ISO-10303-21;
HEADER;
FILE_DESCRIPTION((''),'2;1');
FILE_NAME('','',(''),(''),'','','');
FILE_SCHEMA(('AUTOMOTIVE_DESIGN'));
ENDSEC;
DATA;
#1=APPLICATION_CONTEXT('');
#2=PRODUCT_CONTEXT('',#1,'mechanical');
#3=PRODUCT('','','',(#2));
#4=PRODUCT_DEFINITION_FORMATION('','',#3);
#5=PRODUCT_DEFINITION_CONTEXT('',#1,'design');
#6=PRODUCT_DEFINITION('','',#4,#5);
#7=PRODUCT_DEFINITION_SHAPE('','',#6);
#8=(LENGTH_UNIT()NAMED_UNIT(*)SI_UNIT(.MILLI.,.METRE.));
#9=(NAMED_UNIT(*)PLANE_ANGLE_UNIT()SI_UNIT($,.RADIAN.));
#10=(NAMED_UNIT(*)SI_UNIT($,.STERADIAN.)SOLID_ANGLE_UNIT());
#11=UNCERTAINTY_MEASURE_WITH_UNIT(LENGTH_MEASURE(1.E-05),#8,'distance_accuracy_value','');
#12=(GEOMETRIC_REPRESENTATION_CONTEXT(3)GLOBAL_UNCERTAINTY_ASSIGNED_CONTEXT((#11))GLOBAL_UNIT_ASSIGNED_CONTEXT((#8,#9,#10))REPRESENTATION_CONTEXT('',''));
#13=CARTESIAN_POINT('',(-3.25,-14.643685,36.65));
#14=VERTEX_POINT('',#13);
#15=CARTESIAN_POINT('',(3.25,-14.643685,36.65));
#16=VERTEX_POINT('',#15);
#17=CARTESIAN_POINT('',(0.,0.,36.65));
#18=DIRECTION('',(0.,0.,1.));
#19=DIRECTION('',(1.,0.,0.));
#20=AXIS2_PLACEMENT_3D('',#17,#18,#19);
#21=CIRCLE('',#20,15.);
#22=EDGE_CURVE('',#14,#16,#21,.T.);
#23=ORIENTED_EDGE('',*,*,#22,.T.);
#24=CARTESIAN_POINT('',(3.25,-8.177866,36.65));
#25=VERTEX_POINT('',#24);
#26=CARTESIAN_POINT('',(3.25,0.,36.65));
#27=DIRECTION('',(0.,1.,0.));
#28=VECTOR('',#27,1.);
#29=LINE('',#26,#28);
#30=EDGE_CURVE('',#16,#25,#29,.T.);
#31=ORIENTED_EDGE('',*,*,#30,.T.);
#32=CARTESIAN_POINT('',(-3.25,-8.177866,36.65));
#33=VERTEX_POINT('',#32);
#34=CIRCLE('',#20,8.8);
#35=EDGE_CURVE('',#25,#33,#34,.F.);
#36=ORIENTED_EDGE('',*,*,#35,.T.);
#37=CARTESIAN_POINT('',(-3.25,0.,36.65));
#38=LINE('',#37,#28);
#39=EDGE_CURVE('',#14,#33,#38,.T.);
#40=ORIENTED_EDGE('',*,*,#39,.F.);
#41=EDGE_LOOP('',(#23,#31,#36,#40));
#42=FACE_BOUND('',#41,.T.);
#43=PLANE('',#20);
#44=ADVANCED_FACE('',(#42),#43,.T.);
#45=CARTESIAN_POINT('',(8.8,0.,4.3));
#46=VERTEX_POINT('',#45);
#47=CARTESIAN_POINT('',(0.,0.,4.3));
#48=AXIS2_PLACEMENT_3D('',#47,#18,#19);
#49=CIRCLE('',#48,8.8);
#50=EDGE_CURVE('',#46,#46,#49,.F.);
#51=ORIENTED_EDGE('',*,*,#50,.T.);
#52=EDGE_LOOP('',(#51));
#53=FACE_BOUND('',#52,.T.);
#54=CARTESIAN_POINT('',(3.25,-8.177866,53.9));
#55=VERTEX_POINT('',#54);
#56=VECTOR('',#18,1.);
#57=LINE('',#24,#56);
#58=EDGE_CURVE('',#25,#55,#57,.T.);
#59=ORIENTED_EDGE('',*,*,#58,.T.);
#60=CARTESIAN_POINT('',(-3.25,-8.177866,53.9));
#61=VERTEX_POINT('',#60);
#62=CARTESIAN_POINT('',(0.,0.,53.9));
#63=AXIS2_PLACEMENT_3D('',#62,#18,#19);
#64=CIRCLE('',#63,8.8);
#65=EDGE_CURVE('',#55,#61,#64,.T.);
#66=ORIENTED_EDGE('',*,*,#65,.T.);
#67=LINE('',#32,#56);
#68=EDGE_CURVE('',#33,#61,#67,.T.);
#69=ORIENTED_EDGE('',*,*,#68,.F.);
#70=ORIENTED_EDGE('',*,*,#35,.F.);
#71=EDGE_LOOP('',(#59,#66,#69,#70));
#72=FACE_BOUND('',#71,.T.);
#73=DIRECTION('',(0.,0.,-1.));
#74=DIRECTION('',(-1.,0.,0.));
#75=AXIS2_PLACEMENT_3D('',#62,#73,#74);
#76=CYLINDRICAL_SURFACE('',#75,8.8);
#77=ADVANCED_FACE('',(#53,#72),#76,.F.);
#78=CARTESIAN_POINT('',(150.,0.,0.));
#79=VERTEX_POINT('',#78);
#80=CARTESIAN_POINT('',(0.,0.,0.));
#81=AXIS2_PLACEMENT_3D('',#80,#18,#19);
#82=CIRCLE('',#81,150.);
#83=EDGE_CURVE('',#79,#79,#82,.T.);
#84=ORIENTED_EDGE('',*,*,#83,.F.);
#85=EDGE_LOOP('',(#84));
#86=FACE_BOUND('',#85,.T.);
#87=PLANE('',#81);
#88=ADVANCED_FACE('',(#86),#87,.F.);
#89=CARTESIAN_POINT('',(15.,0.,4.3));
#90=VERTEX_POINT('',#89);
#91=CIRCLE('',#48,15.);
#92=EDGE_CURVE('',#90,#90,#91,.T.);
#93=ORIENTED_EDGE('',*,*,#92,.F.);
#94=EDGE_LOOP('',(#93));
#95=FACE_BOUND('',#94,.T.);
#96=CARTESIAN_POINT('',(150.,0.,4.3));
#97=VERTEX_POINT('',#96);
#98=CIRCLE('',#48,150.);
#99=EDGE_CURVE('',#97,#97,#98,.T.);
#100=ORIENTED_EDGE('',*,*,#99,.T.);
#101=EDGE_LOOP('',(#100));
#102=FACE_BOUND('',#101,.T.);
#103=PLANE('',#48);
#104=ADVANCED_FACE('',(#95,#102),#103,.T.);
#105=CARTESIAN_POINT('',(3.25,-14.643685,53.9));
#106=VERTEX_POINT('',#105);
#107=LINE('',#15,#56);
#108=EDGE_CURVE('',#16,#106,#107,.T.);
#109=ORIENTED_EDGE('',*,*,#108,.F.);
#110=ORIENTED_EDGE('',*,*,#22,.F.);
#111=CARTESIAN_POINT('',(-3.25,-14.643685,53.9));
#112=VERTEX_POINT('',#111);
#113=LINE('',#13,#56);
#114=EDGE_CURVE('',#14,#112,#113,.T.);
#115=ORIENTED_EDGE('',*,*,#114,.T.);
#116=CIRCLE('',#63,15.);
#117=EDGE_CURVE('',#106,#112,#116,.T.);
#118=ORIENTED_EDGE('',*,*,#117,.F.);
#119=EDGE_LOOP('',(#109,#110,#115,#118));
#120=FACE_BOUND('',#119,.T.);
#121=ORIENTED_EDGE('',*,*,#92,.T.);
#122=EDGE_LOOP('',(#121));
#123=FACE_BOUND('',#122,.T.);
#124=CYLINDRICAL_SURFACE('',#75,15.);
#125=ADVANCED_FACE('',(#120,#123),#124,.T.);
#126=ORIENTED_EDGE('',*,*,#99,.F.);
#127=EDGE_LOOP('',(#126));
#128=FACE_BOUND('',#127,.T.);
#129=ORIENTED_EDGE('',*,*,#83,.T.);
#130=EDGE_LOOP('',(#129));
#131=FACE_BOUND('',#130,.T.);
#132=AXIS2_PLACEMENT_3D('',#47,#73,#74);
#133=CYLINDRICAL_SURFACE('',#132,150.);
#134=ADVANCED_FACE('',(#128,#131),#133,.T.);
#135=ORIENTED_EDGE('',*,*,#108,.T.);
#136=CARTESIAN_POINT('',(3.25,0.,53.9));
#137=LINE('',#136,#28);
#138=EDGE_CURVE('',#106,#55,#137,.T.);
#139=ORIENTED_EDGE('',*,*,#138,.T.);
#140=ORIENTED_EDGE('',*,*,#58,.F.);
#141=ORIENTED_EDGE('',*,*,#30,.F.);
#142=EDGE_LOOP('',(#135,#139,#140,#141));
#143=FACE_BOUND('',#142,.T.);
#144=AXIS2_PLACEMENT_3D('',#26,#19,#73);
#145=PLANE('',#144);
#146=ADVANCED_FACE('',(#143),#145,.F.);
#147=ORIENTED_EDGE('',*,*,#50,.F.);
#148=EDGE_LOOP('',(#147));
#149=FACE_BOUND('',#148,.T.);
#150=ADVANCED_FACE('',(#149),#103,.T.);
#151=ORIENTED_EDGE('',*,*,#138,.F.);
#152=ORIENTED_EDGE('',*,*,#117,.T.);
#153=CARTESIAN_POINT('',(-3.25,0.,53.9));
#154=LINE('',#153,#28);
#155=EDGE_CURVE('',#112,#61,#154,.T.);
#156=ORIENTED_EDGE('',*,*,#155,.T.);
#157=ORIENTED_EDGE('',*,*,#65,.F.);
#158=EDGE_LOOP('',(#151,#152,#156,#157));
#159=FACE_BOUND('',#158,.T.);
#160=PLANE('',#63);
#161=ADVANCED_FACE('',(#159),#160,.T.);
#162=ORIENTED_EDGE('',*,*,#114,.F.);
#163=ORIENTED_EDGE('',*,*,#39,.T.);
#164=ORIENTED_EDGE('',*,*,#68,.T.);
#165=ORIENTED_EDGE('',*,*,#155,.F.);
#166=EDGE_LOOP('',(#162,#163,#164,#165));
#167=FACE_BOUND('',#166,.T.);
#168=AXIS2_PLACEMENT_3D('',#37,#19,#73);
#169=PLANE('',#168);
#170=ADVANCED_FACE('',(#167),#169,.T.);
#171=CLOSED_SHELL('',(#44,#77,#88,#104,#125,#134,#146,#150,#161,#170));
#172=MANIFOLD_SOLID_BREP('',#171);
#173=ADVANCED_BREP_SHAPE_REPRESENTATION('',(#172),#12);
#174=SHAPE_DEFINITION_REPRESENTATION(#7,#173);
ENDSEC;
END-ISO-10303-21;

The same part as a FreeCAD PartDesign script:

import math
import FreeCAD as App
import Part
import Sketcher

V = App.Vector
Q = App.Units.Quantity

doc = App.newDocument("Part")
body = doc.addObject("PartDesign::Body", "Body")

sketch1 = body.newObject("Sketcher::SketchObject", "Sketch")
sketch1.AttachmentSupport = (doc.getObject("XY_Plane"), [""])
sketch1.MapMode = "FlatFace"
sketch1.addGeometry(Part.Circle(V(0, 0, 0), V(0, 0, 1), 150), False)
sketch1.addConstraint(Sketcher.Constraint("Coincident", 0, 3, -1, 1))
sketch1.addConstraint(Sketcher.Constraint("Diameter", 0, Q("300 mm")))
pad1 = body.newObject("PartDesign::Pad", "Pad")
pad1.Profile = sketch1
pad1.Length = 4.3

sketch2 = body.newObject("Sketcher::SketchObject", "Sketch001")
sketch2.AttachmentSupport = (doc.getObject("XY_Plane"), [""])
sketch2.MapMode = "FlatFace"
sketch2.AttachmentOffset = App.Placement(V(0, 0, 4.3), App.Rotation())
sketch2.addGeometry(Part.Circle(V(0, 0, 0), V(0, 0, 1), 15), False)
sketch2.addGeometry(Part.Circle(V(0, 0, 0), V(0, 0, 1), 9), False)
sketch2.addConstraint(Sketcher.Constraint("Coincident", 0, 3, -1, 1))
sketch2.addConstraint(Sketcher.Constraint("Coincident", 1, 3, -1, 1))
sketch2.addConstraint(Sketcher.Constraint("Diameter", 0, Q("30 mm")))
sketch2.addConstraint(Sketcher.Constraint("Diameter", 1, Q("17.6 mm")))
pad2 = body.newObject("PartDesign::Pad", "Pad001")
pad2.Profile = sketch2
pad2.Length = 49.6

sketch3 = body.newObject("Sketcher::SketchObject", "Sketch002")
sketch3.AttachmentSupport = (doc.getObject("XY_Plane"), [""])
sketch3.MapMode = "FlatFace"
sketch3.AttachmentOffset = App.Placement(V(0, 0, 36.65), App.Rotation())
sketch3.addGeometry(Part.ArcOfCircle(Part.Circle(V(0, 0, 0), V(0, 0, 1), 8.8), math.radians(-112), math.radians(-90)), False)
sketch3.addGeometry(Part.LineSegment(V(-3.2, -8.2, 0), V(-3.2, -14.6, 0)), False)
sketch3.addGeometry(Part.ArcOfCircle(Part.Circle(V(0, 0, 0), V(0, 0, 1), 15), math.radians(-102.51), math.radians(-90)), False)
sketch3.addGeometry(Part.ArcOfCircle(Part.Circle(V(0, 0, 0), V(0, 0, 1), 15), math.radians(-90), math.radians(-77.49)), False)
sketch3.addGeometry(Part.LineSegment(V(3.2, -14.6, 0), V(3.2, -8.2, 0)), False)
sketch3.addGeometry(Part.ArcOfCircle(Part.Circle(V(0, 0, 0), V(0, 0, 1), 8.8), math.radians(-90), math.radians(-68)), False)
sketch3.addConstraint(Sketcher.Constraint("Coincident", 0, 1, 1, 1))
sketch3.addConstraint(Sketcher.Constraint("Coincident", 1, 2, 2, 1))
sketch3.addConstraint(Sketcher.Constraint("Tangent", 2, 2, 3, 1))
sketch3.addConstraint(Sketcher.Constraint("Coincident", 3, 2, 4, 1))
sketch3.addConstraint(Sketcher.Constraint("Coincident", 4, 2, 5, 2))
sketch3.addConstraint(Sketcher.Constraint("Tangent", 5, 1, 0, 2))
sketch3.addConstraint(Sketcher.Constraint("Vertical", 1))
sketch3.addConstraint(Sketcher.Constraint("Vertical", 4))
sketch3.addConstraint(Sketcher.Constraint("Coincident", 0, 3, -1, 1))
sketch3.addConstraint(Sketcher.Constraint("Coincident", 2, 3, -1, 1))
sketch3.addConstraint(Sketcher.Constraint("Equal", 2, 3))
sketch3.addConstraint(Sketcher.Constraint("Equal", 0, 5))
sketch3.addConstraint(Sketcher.Constraint("PointOnObject", 2, 2, -2))
sketch3.addConstraint(Sketcher.Constraint("PointOnObject", 5, 1, -2))
sketch3.addConstraint(Sketcher.Constraint("Horizontal", 1, 2, 3, 2))
sketch3.addConstraint(Sketcher.Constraint("Radius", 2, Q("15 mm")))
sketch3.addConstraint(Sketcher.Constraint("Radius", 0, Q("8.8 mm")))
sketch3.addConstraint(Sketcher.Constraint("DistanceX", 1, 2, 3, 2, Q("6.5 mm")))
pocket1 = body.newObject("PartDesign::Pocket", "Pocket")
pocket1.Profile = sketch3
pocket1.Length = 17.25
pocket1.Reversed = True

doc.recompute()
